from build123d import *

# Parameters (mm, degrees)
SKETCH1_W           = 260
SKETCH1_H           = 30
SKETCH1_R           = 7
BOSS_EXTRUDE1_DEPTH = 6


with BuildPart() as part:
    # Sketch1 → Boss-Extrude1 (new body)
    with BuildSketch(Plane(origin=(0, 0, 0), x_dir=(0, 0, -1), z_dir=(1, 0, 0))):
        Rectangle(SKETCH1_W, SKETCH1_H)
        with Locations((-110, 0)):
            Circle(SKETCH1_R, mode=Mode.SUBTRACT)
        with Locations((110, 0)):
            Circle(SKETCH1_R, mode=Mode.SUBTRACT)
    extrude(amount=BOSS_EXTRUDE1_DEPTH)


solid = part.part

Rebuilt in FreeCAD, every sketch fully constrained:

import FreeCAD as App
import Part
import Sketcher

V = App.Vector
Q = App.Units.Quantity


def add_polygon(sketch, points):
    """Adds a closed chain of lines whose ends are joined by coincident constraints."""
    first, n = sketch.GeometryCount, len(points)
    for a, b in zip(points, points[1:] + points[:1]):
        sketch.addGeometry(Part.LineSegment(App.Vector(*a, 0), App.Vector(*b, 0)), False)
    for i in range(n):
        sketch.addConstraint(Sketcher.Constraint("Coincident", first + i, 2, first + (i + 1) % n, 1))

doc = App.newDocument("Part")
body = doc.addObject("PartDesign::Body", "Body")

# Sketch on YZ plane
sketch1 = body.newObject("Sketcher::SketchObject", "Sketch")
sketch1.AttachmentSupport = (doc.getObject("YZ_Plane"), [""])
sketch1.MapMode = "FlatFace"
add_polygon(sketch1, [(15, 130), (-15, 130), (-15, -130), (15, -130)])  # lines 0-3
sketch1.addGeometry(Part.Circle(V(0, 110, 0), V(0, 0, 1), 7), False)  # 4
sketch1.addGeometry(Part.Circle(V(0, -110, 0), V(0, 0, 1), 7), False)  # 5
sketch1.addConstraint(Sketcher.Constraint("Horizontal", 0))
sketch1.addConstraint(Sketcher.Constraint("Vertical", 1))
sketch1.addConstraint(Sketcher.Constraint("Horizontal", 2))
sketch1.addConstraint(Sketcher.Constraint("Vertical", 3))
sketch1.addConstraint(Sketcher.Constraint("Equal", 4, 5))
sketch1.addConstraint(Sketcher.Constraint("Symmetric", 4, 3, 5, 3, -1, 1))
sketch1.addConstraint(Sketcher.Constraint("Symmetric", 0, 2, 2, 2, -1, 1))
sketch1.addConstraint(Sketcher.Constraint("PointOnObject", 4, 3, -2))
sketch1.addConstraint(Sketcher.Constraint("Diameter", 4, Q("14 mm")))
sketch1.addConstraint(Sketcher.Constraint("DistanceX", 0, 2, 0, 1, Q("30 mm")))
sketch1.addConstraint(Sketcher.Constraint("DistanceY", 1, 2, 1, 1, Q("260 mm")))
sketch1.addConstraint(Sketcher.Constraint("DistanceY", -1, 1, 4, 3, Q("110 mm")))
pad1 = body.newObject("PartDesign::Pad", "Pad")
pad1.Profile = sketch1
pad1.Length = 6

doc.recompute()
